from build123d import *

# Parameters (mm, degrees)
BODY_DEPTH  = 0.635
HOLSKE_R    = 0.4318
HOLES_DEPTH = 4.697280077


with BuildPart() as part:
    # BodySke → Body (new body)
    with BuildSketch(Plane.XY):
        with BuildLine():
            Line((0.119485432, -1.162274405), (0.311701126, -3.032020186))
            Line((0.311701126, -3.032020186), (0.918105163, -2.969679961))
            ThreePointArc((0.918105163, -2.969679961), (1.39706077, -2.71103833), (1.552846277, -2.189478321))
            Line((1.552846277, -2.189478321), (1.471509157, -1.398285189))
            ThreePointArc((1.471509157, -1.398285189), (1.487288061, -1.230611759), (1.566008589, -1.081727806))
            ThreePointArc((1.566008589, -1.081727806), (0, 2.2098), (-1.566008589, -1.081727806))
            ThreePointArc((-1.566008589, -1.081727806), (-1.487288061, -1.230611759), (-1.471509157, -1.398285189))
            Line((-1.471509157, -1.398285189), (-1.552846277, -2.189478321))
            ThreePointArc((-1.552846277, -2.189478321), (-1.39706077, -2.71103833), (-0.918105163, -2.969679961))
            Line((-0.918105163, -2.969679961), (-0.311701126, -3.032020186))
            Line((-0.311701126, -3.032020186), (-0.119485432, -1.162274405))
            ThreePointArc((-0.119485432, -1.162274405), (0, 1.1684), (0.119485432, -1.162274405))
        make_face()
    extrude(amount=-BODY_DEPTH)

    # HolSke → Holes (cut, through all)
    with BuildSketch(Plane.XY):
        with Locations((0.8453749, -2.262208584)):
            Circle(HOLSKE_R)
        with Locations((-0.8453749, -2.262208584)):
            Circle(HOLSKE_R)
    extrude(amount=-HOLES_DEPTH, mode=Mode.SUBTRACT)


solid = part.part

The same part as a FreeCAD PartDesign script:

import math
import FreeCAD as App
import Part
import Sketcher

V = App.Vector
Q = App.Units.Quantity

doc = App.newDocument("Part")
params = doc.addObject("Spreadsheet::Sheet", "Params")
for row, (alias, value) in enumerate([
    ("sketch1_radius", "0.028 in"),
    ("sketch1_radius2", "0.017 in"),
    ("sketch1_radius3", "0.046 in"),
    ("sketch1_length", "0.074 in"),
    ("sketch1_length2", "0.024 in"),
    ("pad1_length", "0.025 in"),
    ("sketch2_diameter", "0.034 in"),
], start=1):
    params.set(f"A{row}", alias)
    params.set(f"B{row}", "=" + value)
    params.setAlias(f"B{row}", alias)

body = doc.addObject("PartDesign::Body", "Body")

sketch1 = body.newObject("Sketcher::SketchObject", "Sketch")
sketch1.AttachmentSupport = (doc.getObject("XY_Plane"), [""])
sketch1.MapMode = "FlatFace"
sketch1.addGeometry(Part.LineSegment(V(0.12, -1.16, 0), V(0.31, -3.03, 0)), False)
sketch1.addGeometry(Part.LineSegment(V(0.31, -3.03, 0), V(0.92, -2.97, 0)), False)
sketch1.addGeometry(Part.ArcOfCircle(Part.Circle(V(0.85, -2.26, 0), V(0, 0, 1), 0.71), math.radians(-84), math.radians(6)), False)
sketch1.addGeometry(Part.LineSegment(V(1.55, -2.19, 0), V(1.47, -1.4, 0)), False)
sketch1.addGeometry(Part.ArcOfCircle(Part.Circle(V(1.9, -1.35, 0), V(0, 0, 1), 0.43), math.radians(141), math.radians(186)), False)
sketch1.addGeometry(Part.ArcOfCircle(Part.Circle(V(0, 0.19, 0), V(0, 0, 1), 2.02), math.radians(-39), math.radians(219)), False)
sketch1.addGeometry(Part.ArcOfCircle(Part.Circle(V(-1.9, -1.35, 0), V(0, 0, 1), 0.43), math.radians(-6), math.radians(39)), False)
sketch1.addGeometry(Part.LineSegment(V(-1.47, -1.4, 0), V(-1.55, -2.19, 0)), False)
sketch1.addGeometry(Part.ArcOfCircle(Part.Circle(V(-0.85, -2.26, 0), V(0, 0, 1), 0.71), math.radians(174), math.radians(264)), False)
sketch1.addGeometry(Part.LineSegment(V(-0.92, -2.97, 0), V(-0.31, -3.03, 0)), False)
sketch1.addGeometry(Part.LineSegment(V(-0.31, -3.03, 0), V(-0.12, -1.16, 0)), False)
sketch1.addGeometry(Part.ArcOfCircle(Part.Circle(V(0, 0, 0), V(0, 0, 1), 1.17), math.radians(-84), math.radians(264)), False)
sketch1.addConstraint(Sketcher.Constraint("Coincident", 0, 2, 1, 1))
sketch1.addConstraint(Sketcher.Constraint("Tangent", 1, 2, 2, 1))
sketch1.addConstraint(Sketcher.Constraint("Tangent", 2, 2, 3, 1))
sketch1.addConstraint(Sketcher.Constraint("Tangent", 3, 2, 4, 2))
sketch1.addConstraint(Sketcher.Constraint("Tangent", 4, 1, 5, 1))
sketch1.addConstraint(Sketcher.Constraint("Tangent", 5, 2, 6, 2))
sketch1.addConstraint(Sketcher.Constraint("Tangent", 6, 1, 7, 1))
sketch1.addConstraint(Sketcher.Constraint("Tangent", 7, 2, 8, 1))
sketch1.addConstraint(Sketcher.Constraint("Tangent", 8, 2, 9, 1))
sketch1.addConstraint(Sketcher.Constraint("Coincident", 9, 2, 10, 1))
sketch1.addConstraint(Sketcher.Constraint("Coincident", 10, 2, 11, 2))
sketch1.addConstraint(Sketcher.Constraint("Coincident", 11, 1, 0, 1))
sketch1.addConstraint(Sketcher.Constraint("Coincident", 11, 3, -1, 1))
sketch1.addConstraint(Sketcher.Constraint("Equal", 4, 6))
sketch1.addConstraint(Sketcher.Constraint("Equal", 2, 8))
sketch1.addConstraint(Sketcher.Constraint("Symmetric", 4, 3, 6, 3, -2))
sketch1.addConstraint(Sketcher.Constraint("Symmetric", 2, 3, 8, 3, -2))
sketch1.addConstraint(Sketcher.Constraint("Symmetric", 0, 2, 9, 2, -2))
sketch1.addConstraint(Sketcher.Constraint("Perpendicular", 0, 1))
sketch1.addConstraint(Sketcher.Constraint("Perpendicular", 1, 3))
sketch1.addConstraint(Sketcher.Constraint("Perpendicular", 9, 10))
sketch1.addConstraint(Sketcher.Constraint("Radius", 2, Q("0.028 in")))
sketch1.addConstraint(Sketcher.Constraint("Radius", 4, Q("0.017 in")))
sketch1.addConstraint(Sketcher.Constraint("Radius", 11, Q("0.046 in")))
sketch1.addConstraint(Sketcher.Constraint("Distance", 0, Q("0.074 in")))
sketch1.addConstraint(Sketcher.Constraint("Distance", 1, Q("0.024 in")))
sketch1.addConstraint(Sketcher.Constraint("DistanceY", 2, 2, -1, 1, Q("0.0861999 in")))
sketch1.addConstraint(Sketcher.Constraint("Radius", 5, Q("2.018293 mm")))
sketch1.addConstraint(Sketcher.Constraint("DistanceX", -1, 1, 0, 2, Q("0.311701 mm")))
sketch1.addConstraint(Sketcher.Constraint("DistanceX", 2, 2, 4, 3, Q("0.348199 mm")))
sketch1.setExpression("Constraints[21]", "Params.sketch1_radius")
sketch1.setExpression("Constraints[22]", "Params.sketch1_radius2")
sketch1.setExpression("Constraints[23]", "Params.sketch1_radius3")
sketch1.setExpression("Constraints[24]", "Params.sketch1_length")
sketch1.setExpression("Constraints[25]", "Params.sketch1_length2")
pad1 = body.newObject("PartDesign::Pad", "Pad")
pad1.Profile = sketch1
pad1.setExpression("Length", "Params.pad1_length")
pad1.Reversed = True

sketch2 = body.newObject("Sketcher::SketchObject", "Sketch001")
sketch2.AttachmentSupport = (doc.getObject("XY_Plane"), [""])
sketch2.MapMode = "FlatFace"
sketch2.addGeometry(Part.Circle(V(0.85, -2.26, 0), V(0, 0, 1), 0.43), False)
sketch2.addGeometry(Part.Circle(V(-0.85, -2.26, 0), V(0, 0, 1), 0.43), False)
sketch2.addConstraint(Sketcher.Constraint("Equal", 0, 1))
sketch2.addConstraint(Sketcher.Constraint("Symmetric", 0, 3, 1, 3, -2))
sketch2.addConstraint(Sketcher.Constraint("Diameter", 0, Q("0.034 in")))
sketch2.addConstraint(Sketcher.Constraint("DistanceY", 0, 3, -1, 1, Q("2.262209 mm")))
sketch2.addConstraint(Sketcher.Constraint("DistanceX", 1, 3, 0, 3, Q("1.69075 mm")))
sketch2.setExpression("Constraints[2]", "Params.sketch2_diameter")
pocket1 = body.newObject("PartDesign::Pocket", "Pocket")
pocket1.Profile = sketch2
pocket1.Type = "ThroughAll"

doc.recompute()
